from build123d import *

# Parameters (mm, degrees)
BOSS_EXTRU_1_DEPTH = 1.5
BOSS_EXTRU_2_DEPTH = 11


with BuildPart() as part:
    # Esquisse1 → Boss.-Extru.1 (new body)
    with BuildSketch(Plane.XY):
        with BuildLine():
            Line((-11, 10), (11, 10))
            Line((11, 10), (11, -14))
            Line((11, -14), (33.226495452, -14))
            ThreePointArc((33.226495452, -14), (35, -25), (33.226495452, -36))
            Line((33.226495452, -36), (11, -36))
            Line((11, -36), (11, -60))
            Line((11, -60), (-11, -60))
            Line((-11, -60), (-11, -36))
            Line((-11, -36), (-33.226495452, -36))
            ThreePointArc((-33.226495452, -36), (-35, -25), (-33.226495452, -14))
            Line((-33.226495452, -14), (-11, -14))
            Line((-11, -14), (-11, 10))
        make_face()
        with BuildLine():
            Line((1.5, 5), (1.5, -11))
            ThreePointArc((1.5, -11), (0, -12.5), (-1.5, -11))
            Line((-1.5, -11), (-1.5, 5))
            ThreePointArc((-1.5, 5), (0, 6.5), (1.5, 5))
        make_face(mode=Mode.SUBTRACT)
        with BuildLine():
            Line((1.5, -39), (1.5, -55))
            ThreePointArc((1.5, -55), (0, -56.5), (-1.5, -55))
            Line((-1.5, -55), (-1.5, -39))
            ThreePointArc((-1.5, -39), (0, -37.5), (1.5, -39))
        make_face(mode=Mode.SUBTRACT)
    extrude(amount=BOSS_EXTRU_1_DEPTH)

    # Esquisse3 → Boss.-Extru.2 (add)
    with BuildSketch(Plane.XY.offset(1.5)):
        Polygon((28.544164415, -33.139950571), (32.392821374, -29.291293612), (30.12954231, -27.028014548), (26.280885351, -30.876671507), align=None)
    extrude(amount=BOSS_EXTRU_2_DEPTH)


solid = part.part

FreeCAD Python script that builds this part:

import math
import FreeCAD as App
import Part
import Sketcher

V = App.Vector
Q = App.Units.Quantity

doc = App.newDocument("Part")
body = doc.addObject("PartDesign::Body", "Body")

sketch1 = body.newObject("Sketcher::SketchObject", "Sketch")
sketch1.AttachmentSupport = (doc.getObject("XY_Plane"), [""])
sketch1.MapMode = "FlatFace"
sketch1.addGeometry(Part.LineSegment(V(11, 10, 0), V(-11, 10, 0)), False)
sketch1.addGeometry(Part.LineSegment(V(-11, 10, 0), V(-11, -14, 0)), False)
sketch1.addGeometry(Part.LineSegment(V(-11, -14, 0), V(-33.2, -14, 0)), False)
sketch1.addGeometry(Part.ArcOfCircle(Part.Circle(V(0, -25, 0), V(0, 0, 1), 35), math.radians(162), math.radians(198)), False)
sketch1.addGeometry(Part.LineSegment(V(-33.2, -36, 0), V(-11, -36, 0)), False)
sketch1.addGeometry(Part.LineSegment(V(-11, -36, 0), V(-11, -60, 0)), False)
sketch1.addGeometry(Part.LineSegment(V(-11, -60, 0), V(11, -60, 0)), False)
sketch1.addGeometry(Part.LineSegment(V(11, -60, 0), V(11, -36, 0)), False)
sketch1.addGeometry(Part.LineSegment(V(11, -36, 0), V(33.2, -36, 0)), False)
sketch1.addGeometry(Part.ArcOfCircle(Part.Circle(V(0, -25, 0), V(0, 0, 1), 35), math.radians(-18), math.radians(18)), False)
sketch1.addGeometry(Part.LineSegment(V(33.2, -14, 0), V(11, -14, 0)), False)
sketch1.addGeometry(Part.LineSegment(V(11, -14, 0), V(11, 10, 0)), False)
sketch1.addGeometry(Part.LineSegment(V(1.5, -39, 0), V(1.5, -55, 0)), False)
sketch1.addGeometry(Part.ArcOfCircle(Part.Circle(V(0, -55, 0), V(0, 0, 1), 1.5), math.radians(180), math.radians(360)), False)
sketch1.addGeometry(Part.LineSegment(V(-1.5, -55, 0), V(-1.5, -39, 0)), False)
sketch1.addGeometry(Part.ArcOfCircle(Part.Circle(V(0, -39, 0), V(0, 0, 1), 1.5), math.radians(0), math.radians(180)), False)
sketch1.addGeometry(Part.LineSegment(V(1.5, 5, 0), V(1.5, -11, 0)), False)
sketch1.addGeometry(Part.ArcOfCircle(Part.Circle(V(0, -11, 0), V(0, 0, 1), 1.5), math.radians(180), math.radians(360)), False)
sketch1.addGeometry(Part.LineSegment(V(-1.5, -11, 0), V(-1.5, 5, 0)), False)
sketch1.addGeometry(Part.ArcOfCircle(Part.Circle(V(0, 5, 0), V(0, 0, 1), 1.5), math.radians(0), math.radians(180)), False)
sketch1.addConstraint(Sketcher.Constraint("Coincident", 0, 2, 1, 1))
sketch1.addConstraint(Sketcher.Constraint("Coincident", 1, 2, 2, 1))
sketch1.addConstraint(Sketcher.Constraint("Coincident", 2, 2, 3, 1))
sketch1.addConstraint(Sketcher.Constraint("Coincident", 3, 2, 4, 1))
sketch1.addConstraint(Sketcher.Constraint("Coincident", 4, 2, 5, 1))
sketch1.addConstraint(Sketcher.Constraint("Coincident", 5, 2, 6, 1))
sketch1.addConstraint(Sketcher.Constraint("Coincident", 6, 2, 7, 1))
sketch1.addConstraint(Sketcher.Constraint("Coincident", 7, 2, 8, 1))
sketch1.addConstraint(Sketcher.Constraint("Coincident", 8, 2, 9, 1))
sketch1.addConstraint(Sketcher.Constraint("Coincident", 9, 2, 10, 1))
sketch1.addConstraint(Sketcher.Constraint("Coincident", 10, 2, 11, 1))
sketch1.addConstraint(Sketcher.Constraint("Coincident", 11, 2, 0, 1))
sketch1.addConstraint(Sketcher.Constraint("Tangent", 12, 2, 13, 2))
sketch1.addConstraint(Sketcher.Constraint("Tangent", 13, 1, 14, 1))
sketch1.addConstraint(Sketcher.Constraint("Tangent", 14, 2, 15, 2))
sketch1.addConstraint(Sketcher.Constraint("Tangent", 15, 1, 12, 1))
sketch1.addConstraint(Sketcher.Constraint("Tangent", 16, 2, 17, 2))
sketch1.addConstraint(Sketcher.Constraint("Tangent", 17, 1, 18, 1))
sketch1.addConstraint(Sketcher.Constraint("Tangent", 18, 2, 19, 2))
sketch1.addConstraint(Sketcher.Constraint("Tangent", 19, 1, 16, 1))
sketch1.addConstraint(Sketcher.Constraint("Horizontal", 0))
sketch1.addConstraint(Sketcher.Constraint("Vertical", 1))
sketch1.addConstraint(Sketcher.Constraint("Horizontal", 2))
sketch1.addConstraint(Sketcher.Constraint("Horizontal", 4))
sketch1.addConstraint(Sketcher.Constraint("Vertical", 5))
sketch1.addConstraint(Sketcher.Constraint("Horizontal", 6))
sketch1.addConstraint(Sketcher.Constraint("Vertical", 7))
sketch1.addConstraint(Sketcher.Constraint("Horizontal", 8))
sketch1.addConstraint(Sketcher.Constraint("Horizontal", 10))
sketch1.addConstraint(Sketcher.Constraint("Vertical", 11))
sketch1.addConstraint(Sketcher.Constraint("Vertical", 12))
sketch1.addConstraint(Sketcher.Constraint("Vertical", 14))
sketch1.addConstraint(Sketcher.Constraint("Vertical", 16))
sketch1.addConstraint(Sketcher.Constraint("Vertical", 18))
sketch1.addConstraint(Sketcher.Constraint("Coincident", 9, 3, 3, 3))
sketch1.addConstraint(Sketcher.Constraint("Equal", 3, 9))
sketch1.addConstraint(Sketcher.Constraint("Equal", 15, 17))
sketch1.addConstraint(Sketcher.Constraint("Symmetric", 4, 2, 7, 2, -2))
sketch1.addConstraint(Sketcher.Constraint("Symmetric", 2, 2, 9, 2, -2))
sketch1.addConstraint(Sketcher.Constraint("PointOnObject", 13, 3, -2))
sketch1.addConstraint(Sketcher.Constraint("PointOnObject", 17, 3, -2))
sketch1.addConstraint(Sketcher.Constraint("Vertical", 2, 2, 3, 2))
sketch1.addConstraint(Sketcher.Constraint("Vertical", 1, 2, 4, 2))
sketch1.addConstraint(Sketcher.Constraint("Vertical", 7, 2, 10, 2))
sketch1.addConstraint(Sketcher.Constraint("Equal", 1, 5))
sketch1.addConstraint(Sketcher.Constraint("Equal", 14, 16))
sketch1.addConstraint(Sketcher.Constraint("Radius", 3, Q("35 mm")))
sketch1.addConstraint(Sketcher.Constraint("Radius", 13, Q("1.5 mm")))
sketch1.addConstraint(Sketcher.Constraint("DistanceX", 0, 2, 0, 1, Q("22 mm")))
sketch1.addConstraint(Sketcher.Constraint("DistanceY", 1, 2, 1, 1, Q("24 mm")))
sketch1.addConstraint(Sketcher.Constraint("DistanceY", 12, 2, 12, 1, Q("16 mm")))
sketch1.addConstraint(Sketcher.Constraint("DistanceY", 3, 3, -1, 1, Q("25 mm")))
sketch1.addConstraint(Sketcher.Constraint("DistanceY", 13, 3, -1, 1, Q("55 mm")))
sketch1.addConstraint(Sketcher.Constraint("DistanceY", 17, 3, -1, 1, Q("11 mm")))
sketch1.addConstraint(Sketcher.Constraint("DistanceY", -1, 1, 0, 2, Q("10 mm")))
pad1 = body.newObject("PartDesign::Pad", "Pad")
pad1.Profile = sketch1
pad1.Length = 1.5

sketch2 = body.newObject("Sketcher::SketchObject", "Sketch001")
sketch2.AttachmentSupport = (doc.getObject("XY_Plane"), [""])
sketch2.MapMode = "FlatFace"
sketch2.AttachmentOffset = App.Placement(V(0, 0, 1.5), App.Rotation())
sketch2.addGeometry(Part.LineSegment(V(28.5, -33.1, 0), V(32.4, -29.3, 0)), False)
sketch2.addGeometry(Part.LineSegment(V(32.4, -29.3, 0), V(30.1, -27, 0)), False)
sketch2.addGeometry(Part.LineSegment(V(30.1, -27, 0), V(26.3, -30.9, 0)), False)
sketch2.addGeometry(Part.LineSegment(V(26.3, -30.9, 0), V(28.5, -33.1, 0)), False)
sketch2.addConstraint(Sketcher.Constraint("Coincident", 0, 2, 1, 1))
sketch2.addConstraint(Sketcher.Constraint("Coincident", 1, 2, 2, 1))
sketch2.addConstraint(Sketcher.Constraint("Coincident", 2, 2, 3, 1))
sketch2.addConstraint(Sketcher.Constraint("Coincident", 3, 2, 0, 1))
sketch2.addConstraint(Sketcher.Constraint("Perpendicular", 0, 1))
sketch2.addConstraint(Sketcher.Constraint("Perpendicular", 1, 2))
sketch2.addConstraint(Sketcher.Constraint("Perpendicular", 2, 3))
sketch2.addConstraint(Sketcher.Constraint("Angle", 0, Q("45 deg")))
sketch2.addConstraint(Sketcher.Constraint("Distance", 1, Q("3.20076 mm")))
sketch2.addConstraint(Sketcher.Constraint("DistanceX", -1, 1, 0, 2, Q("32.392821 mm")))
sketch2.addConstraint(Sketcher.Constraint("DistanceY", 2, 2, -1, 1, Q("30.876672 mm")))
sketch2.addConstraint(Sketcher.Constraint("Distance", 0, Q("5.442823 mm")))
pad2 = body.newObject("PartDesign::Pad", "Pad001")
pad2.Profile = sketch2
pad2.Length = 11

doc.recompute()
